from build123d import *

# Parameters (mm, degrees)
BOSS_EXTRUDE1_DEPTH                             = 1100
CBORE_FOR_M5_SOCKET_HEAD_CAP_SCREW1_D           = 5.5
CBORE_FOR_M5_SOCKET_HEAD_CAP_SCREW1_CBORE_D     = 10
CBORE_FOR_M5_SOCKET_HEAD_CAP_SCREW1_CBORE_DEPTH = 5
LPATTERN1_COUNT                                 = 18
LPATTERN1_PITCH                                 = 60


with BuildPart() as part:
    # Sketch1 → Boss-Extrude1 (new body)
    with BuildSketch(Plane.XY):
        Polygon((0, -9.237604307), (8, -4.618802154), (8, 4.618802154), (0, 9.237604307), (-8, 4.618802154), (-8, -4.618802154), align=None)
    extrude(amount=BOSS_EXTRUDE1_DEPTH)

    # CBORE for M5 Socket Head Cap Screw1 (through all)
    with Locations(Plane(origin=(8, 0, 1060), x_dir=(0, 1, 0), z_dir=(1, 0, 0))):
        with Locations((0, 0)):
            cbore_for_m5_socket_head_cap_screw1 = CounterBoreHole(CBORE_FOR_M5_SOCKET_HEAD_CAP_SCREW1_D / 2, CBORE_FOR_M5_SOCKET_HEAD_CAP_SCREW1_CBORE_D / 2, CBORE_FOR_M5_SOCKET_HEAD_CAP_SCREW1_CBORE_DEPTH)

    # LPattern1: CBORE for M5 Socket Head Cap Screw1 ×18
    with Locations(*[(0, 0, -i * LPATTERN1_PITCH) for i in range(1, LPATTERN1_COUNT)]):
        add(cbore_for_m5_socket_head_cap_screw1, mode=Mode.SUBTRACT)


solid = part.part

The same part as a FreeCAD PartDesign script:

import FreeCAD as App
import Part
import Sketcher
from FreeCAD import Vector
Q = App.Units.Quantity


def add_polygon(sketch, points):
    """Adds a closed chain of lines whose ends are joined by coincident constraints."""
    first, n = sketch.GeometryCount, len(points)
    for a, b in zip(points, points[1:] + points[:1]):
        sketch.addGeometry(Part.LineSegment(App.Vector(*a, 0), App.Vector(*b, 0)), False)
    for i in range(n):
        sketch.addConstraint(Sketcher.Constraint("Coincident", first + i, 2, first + (i + 1) % n, 1))

doc = App.newDocument("Part")
body = doc.addObject("PartDesign::Body", "Body")

# Sketch on XY plane
sketch1 = body.newObject("Sketcher::SketchObject", "Sketch")
sketch1.AttachmentSupport = (doc.getObject("XY_Plane"), [""])
sketch1.MapMode = "FlatFace"
add_polygon(sketch1, [(0, -9), (8, -5), (8, 5), (0, 9), (-8, 5), (-8, -5)])  # lines 0-5
sketch1.addConstraint(Sketcher.Constraint("Vertical", 1))
sketch1.addConstraint(Sketcher.Constraint("Vertical", 4))
sketch1.addConstraint(Sketcher.Constraint("Symmetric", 0, 2, 3, 2, -1, 1))
sketch1.addConstraint(Sketcher.Constraint("Symmetric", 2, 2, 5, 2, -1, 1))
sketch1.addConstraint(Sketcher.Constraint("PointOnObject", 2, 2, -2))
sketch1.addConstraint(Sketcher.Constraint("Parallel", 2, 5))
sketch1.addConstraint(Sketcher.Constraint("Horizontal", 1, 2, 3, 2))
sketch1.addConstraint(Sketcher.Constraint("Angle", 0, Q("30 deg")))
sketch1.addConstraint(Sketcher.Constraint("DistanceX", -1, 1, 0, 2, Q("8 mm")))
sketch1.addConstraint(Sketcher.Constraint("DistanceY", 1, 1, 1, 2, Q("9.237604 mm")))
pad1 = body.newObject("PartDesign::Pad", "Pad")
pad1.Profile = sketch1
pad1.Length = 1100

# Sketch on YZ plane
sketch2 = body.newObject("Sketcher::SketchObject", "Sketch001")
sketch2.AttachmentSupport = (doc.getObject("YZ_Plane"), [""])
sketch2.MapMode = "FlatFace"
sketch2.AttachmentOffset = App.Placement(Vector(0, 0, 8), App.Rotation())
sketch2.addGeometry(Part.Circle(Vector(0, 1060, 0), Vector(0, 0, 1), 2.8), False)
sketch2.addConstraint(Sketcher.Constraint("PointOnObject", 0, 3, -2))
sketch2.addConstraint(Sketcher.Constraint("Diameter", 0, Q("5.5 mm")))
sketch2.addConstraint(Sketcher.Constraint("DistanceY", -1, 1, 0, 3, Q("1060 mm")))
doc.recompute()
hole = body.newObject("PartDesign::Hole", "Hole")
hole.Profile = sketch2
hole.ThreadType = "None"
hole.Diameter = 5.5
hole.DepthType = "ThroughAll"
hole.HoleCutType = "Counterbore"
hole.HoleCutDiameter = 10
hole.HoleCutDepth = 5
doc.recompute()

linearpattern = body.newObject("PartDesign::LinearPattern", "LinearPattern")
linearpattern.Originals = [hole]
linearpattern.Direction = (doc.getObject("Z_Axis"), [""])
linearpattern.Mode = "offset"
linearpattern.Offset = 60
linearpattern.Occurrences = 18
linearpattern.Reversed = True
body.Tip = linearpattern

doc.recompute()
